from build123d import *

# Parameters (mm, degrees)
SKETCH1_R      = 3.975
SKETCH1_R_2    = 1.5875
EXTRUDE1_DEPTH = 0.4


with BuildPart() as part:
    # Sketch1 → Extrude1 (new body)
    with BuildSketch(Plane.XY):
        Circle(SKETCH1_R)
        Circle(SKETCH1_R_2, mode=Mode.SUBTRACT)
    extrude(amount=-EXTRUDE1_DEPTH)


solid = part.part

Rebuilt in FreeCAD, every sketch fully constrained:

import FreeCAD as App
import Part
import Sketcher
Q = App.Units.Quantity

doc = App.newDocument("Part")
body = doc.addObject("PartDesign::Body", "Body")

sketch1 = doc.addObject("Sketcher::SketchObject", "Sketch")
body.addObject(sketch1)
sketch1.AttachmentSupport = (doc.XY_Plane, [""])
sketch1.MapMode = "FlatFace"
sketch1.addGeometry([
    Part.Circle(App.Vector(0, 0, 0), App.Vector(0, 0, 1), 3.975),
    Part.Circle(App.Vector(0, 0, 0), App.Vector(0, 0, 1), 1.5875),
], False)
sketch1.addConstraint([
    Sketcher.Constraint("Coincident", 0, 3, -1, 1),
    Sketcher.Constraint("Coincident", 1, 3, -1, 1),
    Sketcher.Constraint("Diameter", 0, Q("7.95 mm")),
    Sketcher.Constraint("Diameter", 1, Q("3.175 mm")),
])
pad1 = doc.addObject("PartDesign::Pad", "Pad")
body.addObject(pad1)
pad1.Profile = sketch1
pad1.Length = 0.4
pad1.Reversed = True

doc.recompute()
